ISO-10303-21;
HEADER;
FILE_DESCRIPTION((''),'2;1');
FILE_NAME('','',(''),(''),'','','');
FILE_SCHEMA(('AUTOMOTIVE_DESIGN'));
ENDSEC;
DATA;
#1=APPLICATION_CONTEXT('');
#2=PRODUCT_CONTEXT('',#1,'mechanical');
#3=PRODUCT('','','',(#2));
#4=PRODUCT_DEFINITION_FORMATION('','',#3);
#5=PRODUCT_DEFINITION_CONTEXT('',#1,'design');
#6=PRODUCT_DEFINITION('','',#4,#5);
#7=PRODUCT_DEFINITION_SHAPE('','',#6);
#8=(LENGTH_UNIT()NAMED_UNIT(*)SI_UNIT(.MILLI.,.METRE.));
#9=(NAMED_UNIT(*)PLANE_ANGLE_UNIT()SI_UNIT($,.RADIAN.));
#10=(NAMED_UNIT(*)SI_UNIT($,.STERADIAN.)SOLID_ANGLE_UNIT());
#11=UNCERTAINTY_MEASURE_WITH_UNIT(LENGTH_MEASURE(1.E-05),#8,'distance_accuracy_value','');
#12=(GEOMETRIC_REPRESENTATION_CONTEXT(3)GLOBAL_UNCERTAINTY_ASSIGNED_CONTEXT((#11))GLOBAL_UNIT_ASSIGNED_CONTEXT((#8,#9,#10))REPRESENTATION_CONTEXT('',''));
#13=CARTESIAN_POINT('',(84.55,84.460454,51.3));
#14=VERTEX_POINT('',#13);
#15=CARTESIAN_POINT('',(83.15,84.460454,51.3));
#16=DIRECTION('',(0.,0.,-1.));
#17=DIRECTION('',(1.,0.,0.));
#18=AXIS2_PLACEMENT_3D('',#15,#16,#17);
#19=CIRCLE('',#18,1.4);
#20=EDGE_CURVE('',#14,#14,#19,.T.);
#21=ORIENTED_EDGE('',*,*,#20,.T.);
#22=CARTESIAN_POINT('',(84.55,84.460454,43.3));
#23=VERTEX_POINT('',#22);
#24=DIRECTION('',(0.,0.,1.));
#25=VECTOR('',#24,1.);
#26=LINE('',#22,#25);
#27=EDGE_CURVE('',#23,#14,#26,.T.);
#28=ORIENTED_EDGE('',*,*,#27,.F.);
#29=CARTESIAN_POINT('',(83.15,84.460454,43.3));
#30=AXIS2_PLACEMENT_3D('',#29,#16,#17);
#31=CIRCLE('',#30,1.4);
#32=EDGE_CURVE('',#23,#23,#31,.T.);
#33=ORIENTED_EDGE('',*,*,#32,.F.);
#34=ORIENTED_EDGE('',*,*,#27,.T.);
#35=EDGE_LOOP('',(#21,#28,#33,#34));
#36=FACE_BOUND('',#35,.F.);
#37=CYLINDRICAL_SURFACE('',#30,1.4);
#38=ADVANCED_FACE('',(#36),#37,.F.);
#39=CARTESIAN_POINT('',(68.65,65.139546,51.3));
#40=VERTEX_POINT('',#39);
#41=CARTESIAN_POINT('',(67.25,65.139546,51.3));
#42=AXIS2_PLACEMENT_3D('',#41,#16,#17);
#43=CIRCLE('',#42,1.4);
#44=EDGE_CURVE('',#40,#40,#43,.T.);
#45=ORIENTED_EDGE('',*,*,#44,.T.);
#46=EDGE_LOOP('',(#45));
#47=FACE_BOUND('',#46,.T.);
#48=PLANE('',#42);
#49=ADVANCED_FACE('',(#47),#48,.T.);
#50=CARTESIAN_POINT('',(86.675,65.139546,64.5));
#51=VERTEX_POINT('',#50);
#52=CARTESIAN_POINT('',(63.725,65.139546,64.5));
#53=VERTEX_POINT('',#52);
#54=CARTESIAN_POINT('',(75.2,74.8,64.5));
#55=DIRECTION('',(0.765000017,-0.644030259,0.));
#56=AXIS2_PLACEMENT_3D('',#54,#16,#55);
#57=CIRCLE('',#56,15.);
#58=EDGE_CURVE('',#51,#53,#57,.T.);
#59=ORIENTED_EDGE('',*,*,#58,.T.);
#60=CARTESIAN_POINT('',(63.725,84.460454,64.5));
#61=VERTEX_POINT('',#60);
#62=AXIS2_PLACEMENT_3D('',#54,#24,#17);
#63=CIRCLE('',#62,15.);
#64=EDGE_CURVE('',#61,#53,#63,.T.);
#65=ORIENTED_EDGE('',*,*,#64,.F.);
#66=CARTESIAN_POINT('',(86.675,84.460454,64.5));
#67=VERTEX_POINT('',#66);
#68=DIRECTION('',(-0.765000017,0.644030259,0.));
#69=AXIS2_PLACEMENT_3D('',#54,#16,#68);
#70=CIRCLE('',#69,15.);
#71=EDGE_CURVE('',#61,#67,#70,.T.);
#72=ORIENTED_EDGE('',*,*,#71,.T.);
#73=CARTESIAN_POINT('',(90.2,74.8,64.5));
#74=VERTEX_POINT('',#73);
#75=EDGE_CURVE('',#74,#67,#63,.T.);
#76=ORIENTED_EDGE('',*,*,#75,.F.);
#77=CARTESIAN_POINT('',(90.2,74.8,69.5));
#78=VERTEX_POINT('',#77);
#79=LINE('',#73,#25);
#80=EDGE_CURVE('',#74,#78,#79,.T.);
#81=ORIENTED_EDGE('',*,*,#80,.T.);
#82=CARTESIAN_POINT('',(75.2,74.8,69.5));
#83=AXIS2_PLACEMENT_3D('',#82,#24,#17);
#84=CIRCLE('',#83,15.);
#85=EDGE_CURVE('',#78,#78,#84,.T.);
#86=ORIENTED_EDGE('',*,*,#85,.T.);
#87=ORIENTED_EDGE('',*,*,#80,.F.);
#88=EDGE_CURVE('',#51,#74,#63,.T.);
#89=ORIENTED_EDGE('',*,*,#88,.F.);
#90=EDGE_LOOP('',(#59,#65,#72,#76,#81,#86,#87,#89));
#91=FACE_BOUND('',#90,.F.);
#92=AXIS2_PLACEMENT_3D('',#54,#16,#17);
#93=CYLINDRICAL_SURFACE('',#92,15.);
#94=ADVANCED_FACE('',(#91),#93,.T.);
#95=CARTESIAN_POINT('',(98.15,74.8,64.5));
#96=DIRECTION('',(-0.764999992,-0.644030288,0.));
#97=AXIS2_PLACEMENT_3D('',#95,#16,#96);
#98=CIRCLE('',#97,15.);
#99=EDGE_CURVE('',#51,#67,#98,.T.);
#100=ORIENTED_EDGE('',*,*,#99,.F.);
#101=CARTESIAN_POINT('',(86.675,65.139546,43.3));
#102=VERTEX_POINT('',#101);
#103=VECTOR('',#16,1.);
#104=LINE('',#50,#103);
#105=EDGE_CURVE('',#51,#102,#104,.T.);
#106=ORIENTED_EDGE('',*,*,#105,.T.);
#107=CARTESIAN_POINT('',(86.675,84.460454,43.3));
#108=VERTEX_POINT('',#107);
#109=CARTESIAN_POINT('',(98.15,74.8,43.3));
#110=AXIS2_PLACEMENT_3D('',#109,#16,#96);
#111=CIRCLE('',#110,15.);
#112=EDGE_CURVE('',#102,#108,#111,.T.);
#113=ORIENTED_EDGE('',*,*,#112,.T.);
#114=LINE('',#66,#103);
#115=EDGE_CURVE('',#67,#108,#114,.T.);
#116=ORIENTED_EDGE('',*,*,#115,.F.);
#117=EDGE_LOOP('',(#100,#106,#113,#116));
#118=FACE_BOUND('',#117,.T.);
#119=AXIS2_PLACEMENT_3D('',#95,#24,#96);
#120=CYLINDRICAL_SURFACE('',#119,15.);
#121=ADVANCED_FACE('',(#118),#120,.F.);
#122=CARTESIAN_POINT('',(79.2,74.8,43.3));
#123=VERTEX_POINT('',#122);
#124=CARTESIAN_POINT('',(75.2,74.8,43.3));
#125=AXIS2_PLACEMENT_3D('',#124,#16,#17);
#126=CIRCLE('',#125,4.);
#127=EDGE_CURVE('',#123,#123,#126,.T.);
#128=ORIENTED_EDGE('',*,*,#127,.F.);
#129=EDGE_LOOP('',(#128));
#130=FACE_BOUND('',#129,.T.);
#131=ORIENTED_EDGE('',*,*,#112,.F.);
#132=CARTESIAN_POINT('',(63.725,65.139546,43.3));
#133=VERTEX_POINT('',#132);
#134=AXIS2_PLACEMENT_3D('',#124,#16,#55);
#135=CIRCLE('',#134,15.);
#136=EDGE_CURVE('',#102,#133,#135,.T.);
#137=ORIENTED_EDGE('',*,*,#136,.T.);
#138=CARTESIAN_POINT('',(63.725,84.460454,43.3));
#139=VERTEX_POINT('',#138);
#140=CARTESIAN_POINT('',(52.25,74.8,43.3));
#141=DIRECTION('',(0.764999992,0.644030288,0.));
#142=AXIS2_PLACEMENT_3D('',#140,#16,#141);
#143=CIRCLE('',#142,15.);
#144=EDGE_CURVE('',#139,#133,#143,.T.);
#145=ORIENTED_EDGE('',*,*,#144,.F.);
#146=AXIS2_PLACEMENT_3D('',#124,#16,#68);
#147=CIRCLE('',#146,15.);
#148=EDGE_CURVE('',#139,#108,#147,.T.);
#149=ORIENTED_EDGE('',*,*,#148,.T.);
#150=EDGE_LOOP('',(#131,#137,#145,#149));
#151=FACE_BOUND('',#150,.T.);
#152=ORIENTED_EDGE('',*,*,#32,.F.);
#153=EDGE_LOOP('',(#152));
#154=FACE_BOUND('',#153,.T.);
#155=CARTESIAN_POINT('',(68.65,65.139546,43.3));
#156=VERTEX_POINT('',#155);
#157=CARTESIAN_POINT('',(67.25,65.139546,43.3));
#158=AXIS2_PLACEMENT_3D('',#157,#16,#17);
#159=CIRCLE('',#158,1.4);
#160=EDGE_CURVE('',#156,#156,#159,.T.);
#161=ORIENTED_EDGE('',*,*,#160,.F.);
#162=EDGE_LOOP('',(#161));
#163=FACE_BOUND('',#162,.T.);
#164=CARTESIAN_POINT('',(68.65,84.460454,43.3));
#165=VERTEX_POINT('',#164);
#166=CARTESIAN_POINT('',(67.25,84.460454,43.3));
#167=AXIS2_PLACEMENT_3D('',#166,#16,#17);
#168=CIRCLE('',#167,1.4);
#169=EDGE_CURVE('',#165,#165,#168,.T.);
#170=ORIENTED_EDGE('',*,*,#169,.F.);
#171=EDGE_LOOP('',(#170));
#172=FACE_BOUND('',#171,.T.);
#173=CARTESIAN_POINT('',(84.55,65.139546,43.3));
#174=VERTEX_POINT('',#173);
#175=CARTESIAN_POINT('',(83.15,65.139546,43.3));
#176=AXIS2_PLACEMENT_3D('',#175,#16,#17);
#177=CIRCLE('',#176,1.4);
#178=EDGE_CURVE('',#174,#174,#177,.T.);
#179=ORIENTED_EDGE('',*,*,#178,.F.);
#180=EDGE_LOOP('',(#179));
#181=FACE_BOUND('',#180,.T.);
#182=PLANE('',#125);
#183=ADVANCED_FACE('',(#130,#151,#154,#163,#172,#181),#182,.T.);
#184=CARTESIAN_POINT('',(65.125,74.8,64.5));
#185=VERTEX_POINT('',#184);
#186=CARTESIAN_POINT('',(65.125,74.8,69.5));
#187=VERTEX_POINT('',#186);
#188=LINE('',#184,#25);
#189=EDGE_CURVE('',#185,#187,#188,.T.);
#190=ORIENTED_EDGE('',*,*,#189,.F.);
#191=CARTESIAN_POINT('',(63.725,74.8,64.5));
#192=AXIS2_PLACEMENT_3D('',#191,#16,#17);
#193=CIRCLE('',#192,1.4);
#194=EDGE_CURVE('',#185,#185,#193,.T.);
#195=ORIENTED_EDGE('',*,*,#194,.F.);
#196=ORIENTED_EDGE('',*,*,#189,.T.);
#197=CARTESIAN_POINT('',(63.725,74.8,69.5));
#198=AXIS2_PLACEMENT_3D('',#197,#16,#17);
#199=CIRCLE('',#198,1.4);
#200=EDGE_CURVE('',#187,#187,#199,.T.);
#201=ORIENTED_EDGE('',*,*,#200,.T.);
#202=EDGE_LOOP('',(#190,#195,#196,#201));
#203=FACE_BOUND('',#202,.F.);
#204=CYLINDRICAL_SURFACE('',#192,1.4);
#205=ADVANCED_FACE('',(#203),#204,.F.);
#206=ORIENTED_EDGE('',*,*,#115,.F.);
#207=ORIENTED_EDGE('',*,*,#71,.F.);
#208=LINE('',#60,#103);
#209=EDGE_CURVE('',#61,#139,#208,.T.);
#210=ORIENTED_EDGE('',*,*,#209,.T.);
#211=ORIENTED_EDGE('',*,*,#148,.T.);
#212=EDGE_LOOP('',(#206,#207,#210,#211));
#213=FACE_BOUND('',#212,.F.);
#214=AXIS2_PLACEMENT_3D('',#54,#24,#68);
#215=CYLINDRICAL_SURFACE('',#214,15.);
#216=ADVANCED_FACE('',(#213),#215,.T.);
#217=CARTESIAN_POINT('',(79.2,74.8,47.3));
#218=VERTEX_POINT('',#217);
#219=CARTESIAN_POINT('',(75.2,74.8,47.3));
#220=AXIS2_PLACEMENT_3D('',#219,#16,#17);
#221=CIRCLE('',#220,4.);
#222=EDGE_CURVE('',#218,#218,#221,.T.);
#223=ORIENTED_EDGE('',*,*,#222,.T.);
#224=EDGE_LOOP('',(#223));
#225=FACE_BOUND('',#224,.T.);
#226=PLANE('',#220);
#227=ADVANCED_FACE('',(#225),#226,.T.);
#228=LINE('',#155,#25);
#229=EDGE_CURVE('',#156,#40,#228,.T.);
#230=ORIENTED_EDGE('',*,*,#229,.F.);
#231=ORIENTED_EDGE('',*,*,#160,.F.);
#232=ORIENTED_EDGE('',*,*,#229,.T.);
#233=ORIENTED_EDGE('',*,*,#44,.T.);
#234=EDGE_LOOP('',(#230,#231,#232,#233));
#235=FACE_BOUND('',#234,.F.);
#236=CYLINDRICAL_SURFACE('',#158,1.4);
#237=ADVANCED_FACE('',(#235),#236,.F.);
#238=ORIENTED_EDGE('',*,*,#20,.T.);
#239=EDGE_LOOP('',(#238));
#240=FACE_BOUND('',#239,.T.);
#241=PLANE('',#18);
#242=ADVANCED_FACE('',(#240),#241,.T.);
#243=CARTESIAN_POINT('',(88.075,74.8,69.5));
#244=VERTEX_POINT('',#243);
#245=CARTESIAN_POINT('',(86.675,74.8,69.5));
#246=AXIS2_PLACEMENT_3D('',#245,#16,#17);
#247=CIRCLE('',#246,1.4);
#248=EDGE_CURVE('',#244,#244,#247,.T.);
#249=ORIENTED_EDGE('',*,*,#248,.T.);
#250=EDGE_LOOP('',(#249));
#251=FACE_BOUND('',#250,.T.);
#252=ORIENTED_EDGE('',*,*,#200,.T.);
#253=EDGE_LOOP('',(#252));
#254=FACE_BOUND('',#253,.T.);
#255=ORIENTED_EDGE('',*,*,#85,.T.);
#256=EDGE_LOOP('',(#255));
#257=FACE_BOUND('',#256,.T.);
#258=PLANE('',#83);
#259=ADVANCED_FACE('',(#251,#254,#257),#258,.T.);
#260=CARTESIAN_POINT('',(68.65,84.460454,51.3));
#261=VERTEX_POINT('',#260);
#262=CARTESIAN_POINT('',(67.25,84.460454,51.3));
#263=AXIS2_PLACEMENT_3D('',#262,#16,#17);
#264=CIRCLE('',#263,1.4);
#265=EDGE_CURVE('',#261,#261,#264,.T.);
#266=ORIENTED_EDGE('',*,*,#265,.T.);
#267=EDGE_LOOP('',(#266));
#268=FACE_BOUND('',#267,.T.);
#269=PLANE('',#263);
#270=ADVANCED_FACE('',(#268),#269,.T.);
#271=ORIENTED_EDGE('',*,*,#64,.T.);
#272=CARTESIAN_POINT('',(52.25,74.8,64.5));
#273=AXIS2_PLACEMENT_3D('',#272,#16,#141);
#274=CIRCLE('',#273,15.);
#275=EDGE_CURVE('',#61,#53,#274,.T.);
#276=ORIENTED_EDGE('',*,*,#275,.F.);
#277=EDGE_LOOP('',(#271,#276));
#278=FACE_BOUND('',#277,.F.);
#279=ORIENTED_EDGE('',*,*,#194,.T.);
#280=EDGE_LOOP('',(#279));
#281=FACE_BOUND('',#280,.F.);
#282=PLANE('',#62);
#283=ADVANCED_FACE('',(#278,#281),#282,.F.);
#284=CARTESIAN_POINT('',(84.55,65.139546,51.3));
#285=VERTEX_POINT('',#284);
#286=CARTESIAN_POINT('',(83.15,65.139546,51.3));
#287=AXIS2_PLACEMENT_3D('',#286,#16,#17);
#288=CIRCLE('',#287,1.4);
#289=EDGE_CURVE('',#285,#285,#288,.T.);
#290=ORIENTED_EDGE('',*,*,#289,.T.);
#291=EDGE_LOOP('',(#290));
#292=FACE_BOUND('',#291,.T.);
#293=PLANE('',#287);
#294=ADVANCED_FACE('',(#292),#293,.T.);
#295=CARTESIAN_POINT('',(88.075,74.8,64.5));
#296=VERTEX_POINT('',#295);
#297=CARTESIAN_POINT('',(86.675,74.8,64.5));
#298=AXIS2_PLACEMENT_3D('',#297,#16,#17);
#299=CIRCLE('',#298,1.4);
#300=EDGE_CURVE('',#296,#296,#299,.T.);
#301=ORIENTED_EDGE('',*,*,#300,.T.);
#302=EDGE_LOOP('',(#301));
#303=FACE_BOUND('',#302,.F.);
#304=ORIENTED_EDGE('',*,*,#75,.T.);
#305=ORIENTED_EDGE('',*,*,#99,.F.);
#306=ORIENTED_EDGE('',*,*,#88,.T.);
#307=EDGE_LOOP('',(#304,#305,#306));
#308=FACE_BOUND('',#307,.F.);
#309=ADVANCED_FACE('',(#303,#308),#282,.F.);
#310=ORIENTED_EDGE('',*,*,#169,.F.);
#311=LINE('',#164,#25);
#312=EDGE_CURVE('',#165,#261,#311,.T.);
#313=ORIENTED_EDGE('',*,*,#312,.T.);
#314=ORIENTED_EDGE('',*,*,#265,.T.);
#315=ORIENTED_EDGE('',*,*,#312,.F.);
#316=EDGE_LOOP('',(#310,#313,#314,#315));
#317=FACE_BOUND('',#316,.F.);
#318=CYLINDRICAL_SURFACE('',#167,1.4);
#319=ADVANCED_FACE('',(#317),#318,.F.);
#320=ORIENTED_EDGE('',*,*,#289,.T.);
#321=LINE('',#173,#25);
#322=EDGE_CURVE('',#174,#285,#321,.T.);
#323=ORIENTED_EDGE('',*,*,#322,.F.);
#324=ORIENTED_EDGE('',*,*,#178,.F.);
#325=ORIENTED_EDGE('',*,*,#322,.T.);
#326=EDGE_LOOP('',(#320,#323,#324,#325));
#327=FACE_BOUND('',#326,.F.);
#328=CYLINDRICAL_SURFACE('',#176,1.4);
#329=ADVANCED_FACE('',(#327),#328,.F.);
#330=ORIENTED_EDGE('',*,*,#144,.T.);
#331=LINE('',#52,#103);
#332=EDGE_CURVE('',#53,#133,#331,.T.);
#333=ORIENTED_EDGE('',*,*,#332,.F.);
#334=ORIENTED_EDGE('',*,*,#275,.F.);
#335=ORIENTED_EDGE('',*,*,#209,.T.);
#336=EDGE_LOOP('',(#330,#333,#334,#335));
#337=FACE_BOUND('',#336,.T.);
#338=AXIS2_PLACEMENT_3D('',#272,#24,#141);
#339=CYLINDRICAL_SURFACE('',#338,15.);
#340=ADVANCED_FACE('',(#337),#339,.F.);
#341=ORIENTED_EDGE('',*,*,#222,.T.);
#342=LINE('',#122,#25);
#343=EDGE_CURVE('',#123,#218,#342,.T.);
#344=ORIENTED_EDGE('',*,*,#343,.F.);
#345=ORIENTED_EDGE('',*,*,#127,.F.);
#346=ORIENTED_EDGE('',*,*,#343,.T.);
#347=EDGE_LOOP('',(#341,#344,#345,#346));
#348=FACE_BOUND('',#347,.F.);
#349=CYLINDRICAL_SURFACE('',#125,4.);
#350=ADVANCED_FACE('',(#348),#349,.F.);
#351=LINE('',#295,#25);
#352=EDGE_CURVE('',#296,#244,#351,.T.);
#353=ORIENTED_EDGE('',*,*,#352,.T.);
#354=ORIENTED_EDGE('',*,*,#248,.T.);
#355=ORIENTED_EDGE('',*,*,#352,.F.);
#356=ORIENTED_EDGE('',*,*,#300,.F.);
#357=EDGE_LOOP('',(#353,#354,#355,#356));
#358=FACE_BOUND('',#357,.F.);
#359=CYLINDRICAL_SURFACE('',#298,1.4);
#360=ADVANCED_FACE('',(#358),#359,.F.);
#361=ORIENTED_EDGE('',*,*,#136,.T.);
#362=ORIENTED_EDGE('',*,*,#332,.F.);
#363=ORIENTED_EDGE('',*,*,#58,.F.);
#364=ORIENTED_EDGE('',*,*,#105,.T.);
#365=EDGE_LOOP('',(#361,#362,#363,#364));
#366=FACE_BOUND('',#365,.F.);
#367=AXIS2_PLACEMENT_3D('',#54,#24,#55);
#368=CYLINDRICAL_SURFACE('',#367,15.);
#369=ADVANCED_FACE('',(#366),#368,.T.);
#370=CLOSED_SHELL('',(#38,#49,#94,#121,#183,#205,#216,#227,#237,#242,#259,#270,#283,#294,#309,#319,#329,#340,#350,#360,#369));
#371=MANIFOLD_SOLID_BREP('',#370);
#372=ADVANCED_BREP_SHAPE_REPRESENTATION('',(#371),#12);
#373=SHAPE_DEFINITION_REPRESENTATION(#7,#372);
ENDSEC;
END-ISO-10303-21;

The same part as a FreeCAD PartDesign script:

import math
import FreeCAD as App
import Part
import Sketcher
from FreeCAD import Vector
Q = App.Units.Quantity

doc = App.newDocument("Part")
params = doc.addObject("Spreadsheet::Sheet", "Params")
for row, (alias, value) in enumerate([
    ("sketch1_diameter", "30 mm"),
    ("pad1_length", "5 mm"),
    ("sketch2_diameter", "2.8 mm"),
    ("sketch3_radius", "15 mm"),
    ("pad2_length", "21.2 mm"),
    ("sketch4_diameter", "8 mm"),
    ("pocket2_length", "4 mm"),
    ("sketch5_diameter", "2.8 mm"),
    ("pocket3_length", "8 mm"),
], start=1):
    params.set(f"A{row}", alias)
    params.set(f"B{row}", "=" + value)
    params.setAlias(f"B{row}", alias)

body = doc.addObject("PartDesign::Body", "Body")

sketch1 = body.newObject("Sketcher::SketchObject", "Sketch")
sketch1.AttachmentSupport = (doc.getObject("XZ_Plane"), [""])
sketch1.MapMode = "FlatFace"
sketch1.addGeometry(Part.Circle(Vector(0, 0, 0), Vector(0, 0, 1), 15), False)
sketch1.addConstraint([
    Sketcher.Constraint("Coincident", 0, 3, -1, 1),
    Sketcher.Constraint("Diameter", 0, Q("30 mm")),
])
sketch1.setExpression("Constraints[1]", "Params.sketch1_diameter")
pad1 = body.newObject("PartDesign::Pad", "Pad")
pad1.Profile = sketch1
pad1.setExpression("Length", "Params.pad1_length")

sketch2 = body.newObject("Sketcher::SketchObject", "Sketch001")
sketch2.AttachmentSupport = (doc.getObject("XZ_Plane"), [""])
sketch2.MapMode = "FlatFace"
sketch2.addGeometry([
    Part.Circle(Vector(-11.5, 0, 0), Vector(0, 0, 1), 1.4),
    Part.Circle(Vector(11.5, 0, 0), Vector(0, 0, 1), 1.4),
], False)
sketch2.addConstraint([
    Sketcher.Constraint("Equal", 0, 1),
    Sketcher.Constraint("Symmetric", 0, 3, 1, 3, -1, 1),
    Sketcher.Constraint("PointOnObject", 0, 3, -1),
    Sketcher.Constraint("Diameter", 0, Q("2.8 mm")),
    Sketcher.Constraint("DistanceX", 0, 3, 1, 3, Q("22.95 mm")),
])
sketch2.setExpression("Constraints[3]", "Params.sketch2_diameter")
pocket1 = body.newObject("PartDesign::Pocket", "Pocket")
pocket1.Profile = sketch2
pocket1.Type = "ThroughAll"
pocket1.Reversed = True

sketch3 = body.newObject("Sketcher::SketchObject", "Sketch002")
sketch3.AttachmentSupport = (doc.getObject("XZ_Plane"), [""])
sketch3.MapMode = "FlatFace"
sketch3.addGeometry([
    Part.ArcOfCircle(Part.Circle(Vector(0, 0, 0), Vector(0, 0, 1), 15), math.radians(-140), math.radians(-40)),
    Part.ArcOfCircle(Part.Circle(Vector(-23, 0, 0), Vector(0, 0, 1), 15), math.radians(-40), math.radians(40)),
    Part.ArcOfCircle(Part.Circle(Vector(0, 0, 0), Vector(0, 0, 1), 15), math.radians(40), math.radians(140)),
    Part.ArcOfCircle(Part.Circle(Vector(23, 0, 0), Vector(0, 0, 1), 15), math.radians(140), math.radians(220)),
], False)
sketch3.addConstraint([
    Sketcher.Constraint("Coincident", 0, 1, 1, 1),
    Sketcher.Constraint("Coincident", 1, 2, 2, 2),
    Sketcher.Constraint("Coincident", 2, 1, 3, 1),
    Sketcher.Constraint("Coincident", 3, 2, 0, 2),
    Sketcher.Constraint("Coincident", 0, 3, -1, 1),
    Sketcher.Constraint("Coincident", 2, 3, -1, 1),
    Sketcher.Constraint("Equal", 0, 1),
    Sketcher.Constraint("Equal", 1, 2),
    Sketcher.Constraint("Equal", 2, 3),
    Sketcher.Constraint("Symmetric", 1, 3, 3, 3, -1, 1),
    Sketcher.Constraint("PointOnObject", 1, 3, -1),
    Sketcher.Constraint("Radius", 0, Q("15 mm")),
    Sketcher.Constraint("DistanceX", 1, 3, 3, 3, Q("45.899999 mm")),
])
sketch3.setExpression("Constraints[11]", "Params.sketch3_radius")
pad2 = body.newObject("PartDesign::Pad", "Pad001")
pad2.Profile = sketch3
pad2.setExpression("Length", "Params.pad2_length")
pad2.Reversed = True

sketch4 = body.newObject("Sketcher::SketchObject", "Sketch003")
sketch4.AttachmentSupport = (doc.getObject("XZ_Plane"), [""])
sketch4.MapMode = "FlatFace"
sketch4.AttachmentOffset = App.Placement(Vector(0, 0, -21.2), App.Rotation())
sketch4.addGeometry(Part.Circle(Vector(0, 0, 0), Vector(0, 0, 1), 4), False)
sketch4.addConstraint([
    Sketcher.Constraint("Coincident", 0, 3, -1, 1),
    Sketcher.Constraint("Diameter", 0, Q("8 mm")),
])
sketch4.setExpression("Constraints[1]", "Params.sketch4_diameter")
pocket2 = body.newObject("PartDesign::Pocket", "Pocket001")
pocket2.Profile = sketch4
pocket2.setExpression("Length", "Params.pocket2_length")
pocket2.Reversed = True

sketch5 = body.newObject("Sketcher::SketchObject", "Sketch004")
sketch5.AttachmentSupport = (doc.getObject("XZ_Plane"), [""])
sketch5.MapMode = "FlatFace"
sketch5.AttachmentOffset = App.Placement(Vector(0, 0, -21.2), App.Rotation())
sketch5.addGeometry([
    Part.Circle(Vector(-8, -9.7, 0), Vector(0, 0, 1), 1.4),
    Part.Circle(Vector(8, -9.7, 0), Vector(0, 0, 1), 1.4),
    Part.Circle(Vector(-8, 9.7, 0), Vector(0, 0, 1), 1.4),
    Part.Circle(Vector(8, 9.7, 0), Vector(0, 0, 1), 1.4),
], False)
sketch5.addConstraint([
    Sketcher.Constraint("Equal", 0, 1),
    Sketcher.Constraint("Equal", 1, 2),
    Sketcher.Constraint("Equal", 2, 3),
    Sketcher.Constraint("Symmetric", 1, 3, 2, 3, -1, 1),
    Sketcher.Constraint("Symmetric", 0, 3, 3, 3, -1, 1),
    Sketcher.Constraint("Symmetric", 0, 3, 1, 3, -2),
    Sketcher.Constraint("Diameter", 0, Q("2.8 mm")),
    Sketcher.Constraint("DistanceX", 0, 3, 1, 3, Q("15.9 mm")),
    Sketcher.Constraint("DistanceY", 0, 3, -1, 1, Q("9.660454 mm")),
])
sketch5.setExpression("Constraints[6]", "Params.sketch5_diameter")
pocket3 = body.newObject("PartDesign::Pocket", "Pocket002")
pocket3.Profile = sketch5
pocket3.setExpression("Length", "Params.pocket3_length")
pocket3.Reversed = True
body2 = doc.addObject("PartDesign::Body", "Body001")
doc.recompute()

body.Placement = App.Placement(Vector(75.2, 74.8, 64.5), App.Rotation(Vector(-1, 0, 0), 90))
boolean = body2.newObject("PartDesign::Boolean", "Boolean")
boolean.Type = "Fuse"
boolean.addObjects([body])

doc.recompute()
